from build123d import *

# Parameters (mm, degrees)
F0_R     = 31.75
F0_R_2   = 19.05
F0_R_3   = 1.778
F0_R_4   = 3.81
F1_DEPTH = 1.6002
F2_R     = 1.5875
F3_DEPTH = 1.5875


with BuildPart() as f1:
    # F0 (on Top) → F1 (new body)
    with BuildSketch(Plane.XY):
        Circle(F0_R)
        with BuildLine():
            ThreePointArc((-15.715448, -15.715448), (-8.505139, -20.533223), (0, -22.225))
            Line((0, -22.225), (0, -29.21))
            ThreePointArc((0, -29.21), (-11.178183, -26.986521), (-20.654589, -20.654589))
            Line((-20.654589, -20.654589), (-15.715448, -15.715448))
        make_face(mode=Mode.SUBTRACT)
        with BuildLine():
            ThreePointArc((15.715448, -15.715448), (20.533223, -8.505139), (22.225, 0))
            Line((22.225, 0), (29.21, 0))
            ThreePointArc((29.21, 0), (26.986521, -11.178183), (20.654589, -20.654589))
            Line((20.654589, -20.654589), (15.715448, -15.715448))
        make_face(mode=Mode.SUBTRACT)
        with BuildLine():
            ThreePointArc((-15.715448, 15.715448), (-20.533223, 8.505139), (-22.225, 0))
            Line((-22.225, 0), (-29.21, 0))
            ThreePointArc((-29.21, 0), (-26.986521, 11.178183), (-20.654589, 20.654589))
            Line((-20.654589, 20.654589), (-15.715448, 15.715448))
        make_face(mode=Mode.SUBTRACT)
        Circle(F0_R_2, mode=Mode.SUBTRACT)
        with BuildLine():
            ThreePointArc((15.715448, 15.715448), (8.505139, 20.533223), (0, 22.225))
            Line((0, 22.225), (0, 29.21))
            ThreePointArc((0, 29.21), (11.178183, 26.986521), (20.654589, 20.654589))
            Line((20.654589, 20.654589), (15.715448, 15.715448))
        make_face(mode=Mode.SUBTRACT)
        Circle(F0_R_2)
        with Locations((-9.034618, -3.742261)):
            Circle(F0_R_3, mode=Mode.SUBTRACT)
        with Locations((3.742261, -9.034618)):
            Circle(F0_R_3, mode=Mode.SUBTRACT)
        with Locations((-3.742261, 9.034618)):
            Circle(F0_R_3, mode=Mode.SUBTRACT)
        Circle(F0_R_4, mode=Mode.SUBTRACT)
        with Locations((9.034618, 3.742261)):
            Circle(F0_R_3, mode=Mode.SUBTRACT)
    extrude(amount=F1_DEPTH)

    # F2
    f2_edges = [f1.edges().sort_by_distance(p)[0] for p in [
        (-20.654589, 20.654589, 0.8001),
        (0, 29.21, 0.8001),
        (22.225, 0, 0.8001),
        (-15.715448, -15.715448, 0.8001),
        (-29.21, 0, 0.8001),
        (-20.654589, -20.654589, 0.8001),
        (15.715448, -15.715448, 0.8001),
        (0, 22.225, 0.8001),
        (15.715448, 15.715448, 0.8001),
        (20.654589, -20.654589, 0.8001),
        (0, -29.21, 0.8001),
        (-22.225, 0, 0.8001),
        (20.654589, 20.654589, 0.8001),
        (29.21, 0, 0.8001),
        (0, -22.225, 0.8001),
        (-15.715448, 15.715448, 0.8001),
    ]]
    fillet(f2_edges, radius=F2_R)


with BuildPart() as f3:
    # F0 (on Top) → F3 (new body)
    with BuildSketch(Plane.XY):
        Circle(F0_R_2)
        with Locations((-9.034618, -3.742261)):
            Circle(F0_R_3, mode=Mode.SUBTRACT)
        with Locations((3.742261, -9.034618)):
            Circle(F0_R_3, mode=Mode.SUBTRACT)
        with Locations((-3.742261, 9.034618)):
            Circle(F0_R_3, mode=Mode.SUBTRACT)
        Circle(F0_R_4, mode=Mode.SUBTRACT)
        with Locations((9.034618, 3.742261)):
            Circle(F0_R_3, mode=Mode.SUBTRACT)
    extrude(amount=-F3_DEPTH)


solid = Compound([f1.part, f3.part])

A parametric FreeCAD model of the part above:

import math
import FreeCAD as App
import Part
import Sketcher

V = App.Vector
Q = App.Units.Quantity


def edges_at(feature, points):
    """Names of the edges that pass closest to the given points."""
    edges = feature.Shape.Edges
    near = lambda p: min(range(len(edges)), key=lambda i: edges[i].distToShape(Part.Vertex(*p))[0])
    return sorted({f"Edge{near(p) + 1}" for p in points})

doc = App.newDocument("Part")
body = doc.addObject("PartDesign::Body", "Body")

# Sketch on XY plane
sketch1 = body.newObject("Sketcher::SketchObject", "Sketch")
sketch1.AttachmentSupport = (doc.getObject("XY_Plane"), [""])
sketch1.MapMode = "FlatFace"
sketch1.addGeometry(Part.Circle(V(0, 0, 0), V(0, 0, 1), 31.8), False)
sketch1.addGeometry(Part.LineSegment(V(-20.7, -20.7, 0), V(-15.7, -15.7, 0)), False)
sketch1.addGeometry(Part.ArcOfCircle(Part.Circle(V(0, 0, 0), V(0, 0, 1), 22.2), math.radians(-135), math.radians(-90)), False)
sketch1.addGeometry(Part.LineSegment(V(0, -22.2, 0), V(0, -29.2, 0)), False)
sketch1.addGeometry(Part.ArcOfCircle(Part.Circle(V(0, 0, 0), V(0, 0, 1), 29.2), math.radians(-135), math.radians(-90)), False)
sketch1.addGeometry(Part.Circle(V(-9, -3.7, 0), V(0, 0, 1), 1.8), False)
sketch1.addGeometry(Part.Circle(V(0, 0, 0), V(0, 0, 1), 3.8), False)
sketch1.addGeometry(Part.Circle(V(3.7, -9, 0), V(0, 0, 1), 1.8), False)
sketch1.addGeometry(Part.LineSegment(V(20.7, -20.7, 0), V(15.7, -15.7, 0)), False)
sketch1.addGeometry(Part.ArcOfCircle(Part.Circle(V(0, 0, 0), V(0, 0, 1), 22.2), math.radians(-45), math.radians(0)), False)
sketch1.addGeometry(Part.LineSegment(V(22.2, 0, 0), V(29.2, 0, 0)), False)
sketch1.addGeometry(Part.ArcOfCircle(Part.Circle(V(0, 0, 0), V(0, 0, 1), 29.2), math.radians(-45), math.radians(0)), False)
sketch1.addGeometry(Part.LineSegment(V(-20.7, 20.7, 0), V(-15.7, 15.7, 0)), False)
sketch1.addGeometry(Part.ArcOfCircle(Part.Circle(V(0, 0, 0), V(0, 0, 1), 22.2), math.radians(135), math.radians(180)), False)
sketch1.addGeometry(Part.LineSegment(V(-22.2, 0, 0), V(-29.2, 0, 0)), False)
sketch1.addGeometry(Part.ArcOfCircle(Part.Circle(V(0, 0, 0), V(0, 0, 1), 29.2), math.radians(135), math.radians(180)), False)
sketch1.addGeometry(Part.Circle(V(-3.7, 9, 0), V(0, 0, 1), 1.8), False)
sketch1.addGeometry(Part.Circle(V(9, 3.7, 0), V(0, 0, 1), 1.8), False)
sketch1.addGeometry(Part.LineSegment(V(20.7, 20.7, 0), V(15.7, 15.7, 0)), False)
sketch1.addGeometry(Part.ArcOfCircle(Part.Circle(V(0, 0, 0), V(0, 0, 1), 22.2), math.radians(45), math.radians(90)), False)
sketch1.addGeometry(Part.LineSegment(V(0, 22.2, 0), V(0, 29.2, 0)), False)
sketch1.addGeometry(Part.ArcOfCircle(Part.Circle(V(0, 0, 0), V(0, 0, 1), 29.2), math.radians(45), math.radians(90)), False)
sketch1.addConstraint(Sketcher.Constraint("Coincident", 1, 2, 2, 1))
sketch1.addConstraint(Sketcher.Constraint("Coincident", 2, 2, 3, 1))
sketch1.addConstraint(Sketcher.Constraint("Coincident", 3, 2, 4, 2))
sketch1.addConstraint(Sketcher.Constraint("Coincident", 4, 1, 1, 1))
sketch1.addConstraint(Sketcher.Constraint("Coincident", 8, 2, 9, 1))
sketch1.addConstraint(Sketcher.Constraint("Coincident", 9, 2, 10, 1))
sketch1.addConstraint(Sketcher.Constraint("Coincident", 10, 2, 11, 2))
sketch1.addConstraint(Sketcher.Constraint("Coincident", 11, 1, 8, 1))
sketch1.addConstraint(Sketcher.Constraint("Coincident", 12, 2, 13, 1))
sketch1.addConstraint(Sketcher.Constraint("Coincident", 13, 2, 14, 1))
sketch1.addConstraint(Sketcher.Constraint("Coincident", 14, 2, 15, 2))
sketch1.addConstraint(Sketcher.Constraint("Coincident", 15, 1, 12, 1))
sketch1.addConstraint(Sketcher.Constraint("Coincident", 18, 2, 19, 1))
sketch1.addConstraint(Sketcher.Constraint("Coincident", 19, 2, 20, 1))
sketch1.addConstraint(Sketcher.Constraint("Coincident", 20, 2, 21, 2))
sketch1.addConstraint(Sketcher.Constraint("Coincident", 21, 1, 18, 1))
sketch1.addConstraint(Sketcher.Constraint("Vertical", 3))
sketch1.addConstraint(Sketcher.Constraint("Horizontal", 10))
sketch1.addConstraint(Sketcher.Constraint("Horizontal", 14))
sketch1.addConstraint(Sketcher.Constraint("Vertical", 20))
sketch1.addConstraint(Sketcher.Constraint("Coincident", 0, 3, -1, 1))
sketch1.addConstraint(Sketcher.Constraint("Coincident", 2, 3, -1, 1))
sketch1.addConstraint(Sketcher.Constraint("Coincident", 4, 3, -1, 1))
sketch1.addConstraint(Sketcher.Constraint("Coincident", 6, 3, -1, 1))
sketch1.addConstraint(Sketcher.Constraint("Coincident", 9, 3, -1, 1))
sketch1.addConstraint(Sketcher.Constraint("Coincident", 11, 3, -1, 1))
sketch1.addConstraint(Sketcher.Constraint("Coincident", 13, 3, -1, 1))
sketch1.addConstraint(Sketcher.Constraint("Coincident", 15, 3, -1, 1))
sketch1.addConstraint(Sketcher.Constraint("Coincident", 19, 3, -1, 1))
sketch1.addConstraint(Sketcher.Constraint("Coincident", 21, 3, -1, 1))
sketch1.addConstraint(Sketcher.Constraint("Equal", 5, 7))
sketch1.addConstraint(Sketcher.Constraint("Equal", 2, 9))
sketch1.addConstraint(Sketcher.Constraint("Equal", 4, 11))
sketch1.addConstraint(Sketcher.Constraint("Equal", 9, 13))
sketch1.addConstraint(Sketcher.Constraint("Equal", 11, 15))
sketch1.addConstraint(Sketcher.Constraint("Equal", 7, 16))
sketch1.addConstraint(Sketcher.Constraint("Equal", 16, 17))
sketch1.addConstraint(Sketcher.Constraint("Equal", 13, 19))
sketch1.addConstraint(Sketcher.Constraint("Equal", 15, 21))
sketch1.addConstraint(Sketcher.Constraint("Symmetric", 7, 3, 16, 3, -1, 1))
sketch1.addConstraint(Sketcher.Constraint("Symmetric", 5, 3, 17, 3, -1, 1))
sketch1.addConstraint(Sketcher.Constraint("PointOnObject", 2, 2, -2))
sketch1.addConstraint(Sketcher.Constraint("PointOnObject", 9, 2, -1))
sketch1.addConstraint(Sketcher.Constraint("PointOnObject", 13, 2, -1))
sketch1.addConstraint(Sketcher.Constraint("PointOnObject", 19, 2, -2))
sketch1.addConstraint(Sketcher.Constraint("Perpendicular", 1, 8))
sketch1.addConstraint(Sketcher.Constraint("Parallel", 8, 12))
sketch1.addConstraint(Sketcher.Constraint("Perpendicular", 12, 18))
sketch1.addConstraint(Sketcher.Constraint("Horizontal", 1, 2, 8, 2))
sketch1.addConstraint(Sketcher.Constraint("Horizontal", 4, 1, 11, 1))
sketch1.addConstraint(Sketcher.Constraint("Horizontal", 12, 2, 18, 2))
sketch1.addConstraint(Sketcher.Constraint("Vertical", 1, 2, 12, 2))
sketch1.addConstraint(Sketcher.Constraint("Diameter", 0, Q("2.5 in")))
sketch1.addConstraint(Sketcher.Constraint("Diameter", 6, Q("0.3 in")))
sketch1.addConstraint(Sketcher.Constraint("Diameter", 5, Q("0.14 in")))
sketch1.addConstraint(Sketcher.Constraint("Radius", 4, Q("1.15 in")))
sketch1.addConstraint(Sketcher.Constraint("Radius", 2, Q("0.8749998 in")))
sketch1.addConstraint(Sketcher.Constraint("DistanceY", 5, 3, -1, 1, Q("3.742261 mm")))
sketch1.addConstraint(Sketcher.Constraint("DistanceX", -1, 1, 7, 3, Q("3.742261 mm")))
sketch1.addConstraint(Sketcher.Constraint("DistanceX", 4, 1, -1, 1, Q("20.654589 mm")))
sketch1.addConstraint(Sketcher.Constraint("DistanceX", 5, 3, 4, 3, Q("9.034619 mm")))
sketch1.addConstraint(Sketcher.Constraint("DistanceY", 7, 3, 4, 3, Q("9.034619 mm")))
pad1 = body.newObject("PartDesign::Pad", "Pad")
pad1.Profile = sketch1
pad1.Length = Q("0.063 in")
doc.recompute()

fillet = body.newObject("PartDesign::Fillet", "Fillet")
fillet.Base = (pad1, edges_at(pad1, [
    (-20.655, 20.655, 0.8),
    (0, 29.21, 0.8),
    (22.225, 0, 0.8),
    (-15.715, -15.715, 0.8),
    (-29.21, 0, 0.8),
    (-20.655, -20.655, 0.8),
    (15.715, -15.715, 0.8),
    (0, 22.225, 0.8),
    (15.715, 15.715, 0.8),
    (20.655, -20.655, 0.8),
    (0, -29.21, 0.8),
    (-22.225, 0, 0.8),
    (20.655, 20.655, 0.8),
    (29.21, 0, 0.8),
    (0, -22.225, 0.8),
    (-15.715, 15.715, 0.8),
]))
fillet.Radius = Q("0.0625 in")
body2 = doc.addObject("PartDesign::Body", "Body001")

# Sketch on XY plane
sketch2 = body2.newObject("Sketcher::SketchObject", "Sketch001")
sketch2.AttachmentSupport = (doc.getObject("XY_Plane001"), [""])
sketch2.MapMode = "FlatFace"
sketch2.addGeometry(Part.Circle(V(0, 0, 0), V(0, 0, 1), 19.1), False)
sketch2.addGeometry(Part.Circle(V(-9, -3.7, 0), V(0, 0, 1), 1.8), False)
sketch2.addGeometry(Part.Circle(V(3.7, -9, 0), V(0, 0, 1), 1.8), False)
sketch2.addGeometry(Part.Circle(V(-3.7, 9, 0), V(0, 0, 1), 1.8), False)
sketch2.addGeometry(Part.Circle(V(0, 0, 0), V(0, 0, 1), 3.8), False)
sketch2.addGeometry(Part.Circle(V(9, 3.7, 0), V(0, 0, 1), 1.8), False)
sketch2.addConstraint(Sketcher.Constraint("Coincident", 0, 3, -1, 1))
sketch2.addConstraint(Sketcher.Constraint("Coincident", 4, 3, -1, 1))
sketch2.addConstraint(Sketcher.Constraint("Equal", 1, 2))
sketch2.addConstraint(Sketcher.Constraint("Equal", 2, 3))
sketch2.addConstraint(Sketcher.Constraint("Equal", 3, 5))
sketch2.addConstraint(Sketcher.Constraint("Symmetric", 2, 3, 3, 3, -1, 1))
sketch2.addConstraint(Sketcher.Constraint("Symmetric", 1, 3, 5, 3, -1, 1))
sketch2.addConstraint(Sketcher.Constraint("Diameter", 0, Q("1.5 in")))
sketch2.addConstraint(Sketcher.Constraint("Diameter", 4, Q("0.3 in")))
sketch2.addConstraint(Sketcher.Constraint("Diameter", 1, Q("0.14 in")))
sketch2.addConstraint(Sketcher.Constraint("DistanceY", 1, 3, -1, 1, Q("3.742261 mm")))
sketch2.addConstraint(Sketcher.Constraint("DistanceX", -1, 1, 2, 3, Q("3.742261 mm")))
sketch2.addConstraint(Sketcher.Constraint("DistanceX", 1, 3, 2, 3, Q("12.776879 mm")))
sketch2.addConstraint(Sketcher.Constraint("DistanceY", 1, 3, 3, 3, Q("12.776879 mm")))
pad2 = body2.newObject("PartDesign::Pad", "Pad001")
pad2.Profile = sketch2
pad2.Length = Q("0.0625 in")
pad2.Reversed = True

doc.recompute()
